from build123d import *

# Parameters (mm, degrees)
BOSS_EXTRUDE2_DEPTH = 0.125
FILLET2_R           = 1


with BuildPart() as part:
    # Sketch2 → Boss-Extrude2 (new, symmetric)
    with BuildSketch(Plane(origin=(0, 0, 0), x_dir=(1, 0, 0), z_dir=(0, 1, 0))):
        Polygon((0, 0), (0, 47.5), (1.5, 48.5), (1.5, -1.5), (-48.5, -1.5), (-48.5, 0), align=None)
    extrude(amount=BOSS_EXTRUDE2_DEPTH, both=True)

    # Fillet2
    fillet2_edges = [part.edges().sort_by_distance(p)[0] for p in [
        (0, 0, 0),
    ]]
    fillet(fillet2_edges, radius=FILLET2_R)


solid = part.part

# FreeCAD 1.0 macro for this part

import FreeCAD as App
import Part
import Sketcher
Q = App.Units.Quantity


def edges_at(feature, points):
    """Names of the edges that pass closest to the given points."""
    edges = feature.Shape.Edges
    near = lambda p: min(range(len(edges)), key=lambda i: edges[i].distToShape(Part.Vertex(*p))[0])
    return sorted({f"Edge{near(p) + 1}" for p in points})


def add_polygon(sketch, points):
    """Adds a closed chain of lines whose ends are joined by coincident constraints."""
    first, n = sketch.GeometryCount, len(points)
    for a, b in zip(points, points[1:] + points[:1]):
        sketch.addGeometry(Part.LineSegment(App.Vector(*a, 0), App.Vector(*b, 0)), False)
    for i in range(n):
        sketch.addConstraint(Sketcher.Constraint("Coincident", first + i, 2, first + (i + 1) % n, 1))

doc = App.newDocument("Part")
body = doc.addObject("PartDesign::Body", "Body")

# Sketch on XZ plane
sketch1 = doc.addObject("Sketcher::SketchObject", "Sketch")
body.addObject(sketch1)
sketch1.AttachmentSupport = (doc.XZ_Plane, [""])
sketch1.MapMode = "FlatFace"
add_polygon(sketch1, [(0, -47.5), (0, 0), (-48.5, 0), (-48.5, 1.5), (1.5, 1.5), (1.5, -48.5)])  # lines 0-5
sketch1.addConstraint(Sketcher.Constraint("Vertical", 0))
sketch1.addConstraint(Sketcher.Constraint("Horizontal", 1))
sketch1.addConstraint(Sketcher.Constraint("Vertical", 2))
sketch1.addConstraint(Sketcher.Constraint("Horizontal", 3))
sketch1.addConstraint(Sketcher.Constraint("Vertical", 4))
sketch1.addConstraint(Sketcher.Constraint("Coincident", 0, 2, -1, 1))
sketch1.addConstraint(Sketcher.Constraint("Equal", 3, 4))
sketch1.addConstraint(Sketcher.Constraint("DistanceX", 3, 1, 3, 2, Q("50 mm")))
sketch1.addConstraint(Sketcher.Constraint("DistanceX", 1, 2, 1, 1, Q("48.5 mm")))
sketch1.addConstraint(Sketcher.Constraint("DistanceY", 0, 1, 0, 2, Q("47.5 mm")))
sketch1.addConstraint(Sketcher.Constraint("DistanceY", 2, 1, 2, 2, Q("1.5 mm")))
pad1 = doc.addObject("PartDesign::Pad", "Pad")
body.addObject(pad1)
pad1.Profile = sketch1
pad1.Length = 0.25
pad1.Midplane = True
doc.recompute()

fillet = doc.addObject("PartDesign::Fillet", "Fillet")
body.addObject(fillet)
fillet.Base = (pad1, edges_at(pad1, [(0, 0, 0)]))
fillet.Radius = 1

doc.recompute()
